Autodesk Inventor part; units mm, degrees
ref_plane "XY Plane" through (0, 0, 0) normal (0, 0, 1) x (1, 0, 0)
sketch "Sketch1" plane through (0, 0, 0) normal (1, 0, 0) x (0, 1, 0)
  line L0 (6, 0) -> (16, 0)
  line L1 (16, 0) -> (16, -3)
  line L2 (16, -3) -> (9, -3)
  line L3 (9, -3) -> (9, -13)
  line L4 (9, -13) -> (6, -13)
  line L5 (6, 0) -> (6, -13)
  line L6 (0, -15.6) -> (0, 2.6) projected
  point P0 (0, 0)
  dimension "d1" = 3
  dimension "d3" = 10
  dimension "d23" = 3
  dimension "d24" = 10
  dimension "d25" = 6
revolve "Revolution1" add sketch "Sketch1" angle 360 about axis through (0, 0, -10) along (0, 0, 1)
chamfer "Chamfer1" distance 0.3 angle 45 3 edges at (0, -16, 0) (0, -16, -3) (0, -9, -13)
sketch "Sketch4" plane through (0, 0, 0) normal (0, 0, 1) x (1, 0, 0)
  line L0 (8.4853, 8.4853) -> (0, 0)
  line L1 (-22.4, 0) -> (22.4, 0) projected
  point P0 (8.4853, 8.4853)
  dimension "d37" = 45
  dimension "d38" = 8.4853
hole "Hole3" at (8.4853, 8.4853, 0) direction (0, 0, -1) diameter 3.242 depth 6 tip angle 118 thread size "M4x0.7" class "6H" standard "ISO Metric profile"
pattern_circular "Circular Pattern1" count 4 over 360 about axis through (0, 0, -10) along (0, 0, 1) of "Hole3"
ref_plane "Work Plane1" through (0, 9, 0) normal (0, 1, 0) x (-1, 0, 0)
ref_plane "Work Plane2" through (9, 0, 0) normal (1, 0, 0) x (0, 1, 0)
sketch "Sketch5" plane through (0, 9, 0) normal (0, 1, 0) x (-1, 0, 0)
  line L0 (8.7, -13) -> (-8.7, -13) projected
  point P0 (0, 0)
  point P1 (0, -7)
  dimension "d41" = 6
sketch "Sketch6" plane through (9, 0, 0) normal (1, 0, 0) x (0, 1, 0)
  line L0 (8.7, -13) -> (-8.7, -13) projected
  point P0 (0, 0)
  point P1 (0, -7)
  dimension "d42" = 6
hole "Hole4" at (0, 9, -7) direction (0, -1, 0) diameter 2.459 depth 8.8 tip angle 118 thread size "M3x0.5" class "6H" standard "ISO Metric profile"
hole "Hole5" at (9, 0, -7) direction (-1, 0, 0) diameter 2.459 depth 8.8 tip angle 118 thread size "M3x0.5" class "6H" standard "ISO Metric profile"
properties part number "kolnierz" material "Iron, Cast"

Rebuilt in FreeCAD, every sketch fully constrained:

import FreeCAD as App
import Part
import Sketcher

V = App.Vector
Q = App.Units.Quantity


def edges_at(feature, points):
    """Names of the edges that pass closest to the given points."""
    edges = feature.Shape.Edges
    near = lambda p: min(range(len(edges)), key=lambda i: edges[i].distToShape(Part.Vertex(*p))[0])
    return sorted({f"Edge{near(p) + 1}" for p in points})


def add_polygon(sketch, points):
    """Adds a closed chain of lines whose ends are joined by coincident constraints."""
    first, n = sketch.GeometryCount, len(points)
    for a, b in zip(points, points[1:] + points[:1]):
        sketch.addGeometry(Part.LineSegment(App.Vector(*a, 0), App.Vector(*b, 0)), False)
    for i in range(n):
        sketch.addConstraint(Sketcher.Constraint("Coincident", first + i, 2, first + (i + 1) % n, 1))

doc = App.newDocument("Part")
body = doc.addObject("PartDesign::Body", "Body")

# Sketch on YZ plane
sketch1 = doc.addObject("Sketcher::SketchObject", "Sketch")
body.addObject(sketch1)
sketch1.AttachmentSupport = (doc.YZ_Plane, [""])
sketch1.MapMode = "FlatFace"
add_polygon(sketch1, [(16, 0), (6, 0), (6, -13), (9, -13), (9, -3), (16, -3)])  # lines 0-5
sketch1.addConstraint(Sketcher.Constraint("Horizontal", 0))
sketch1.addConstraint(Sketcher.Constraint("Vertical", 1))
sketch1.addConstraint(Sketcher.Constraint("Horizontal", 2))
sketch1.addConstraint(Sketcher.Constraint("Vertical", 3))
sketch1.addConstraint(Sketcher.Constraint("Horizontal", 4))
sketch1.addConstraint(Sketcher.Constraint("Vertical", 5))
sketch1.addConstraint(Sketcher.Constraint("PointOnObject", 0, 2, -1))
sketch1.addConstraint(Sketcher.Constraint("Equal", 0, 3))
sketch1.addConstraint(Sketcher.Constraint("Equal", 2, 5))
sketch1.addConstraint(Sketcher.Constraint("DistanceX", 0, 2, 0, 1, Q("10 mm")))
sketch1.addConstraint(Sketcher.Constraint("DistanceX", 2, 1, 2, 2, Q("3 mm")))
sketch1.addConstraint(Sketcher.Constraint("DistanceX", -1, 1, 0, 2, Q("6 mm")))
revolution = doc.addObject("PartDesign::Revolution", "Revolution")
body.addObject(revolution)
revolution.Profile = sketch1
revolution.ReferenceAxis = (sketch1, ["V_Axis"])
revolution.Angle = 360
doc.recompute()

chamfer = doc.addObject("PartDesign::Chamfer", "Chamfer")
body.addObject(chamfer)
chamfer.Base = (revolution, edges_at(revolution, [(0, -16, 0), (0, -16, -3), (0, -9, -13)]))
chamfer.Size = 0.3

# Sketch on XY plane
sketch2 = doc.addObject("Sketcher::SketchObject", "Sketch001")
body.addObject(sketch2)
sketch2.AttachmentSupport = (doc.XY_Plane, [""])
sketch2.MapMode = "FlatFace"
sketch2.addGeometry(Part.Circle(V(8.5, 8.5, 0), V(0, 0, 1), 1.6), False)
sketch2.addConstraint(Sketcher.Constraint("Diameter", 0, Q("3.242 mm")))
sketch2.addConstraint(Sketcher.Constraint("DistanceX", -1, 1, 0, 3, Q("8.4853 mm")))
sketch2.addConstraint(Sketcher.Constraint("DistanceY", -1, 1, 0, 3, Q("8.4853 mm")))
doc.recompute()
hole = doc.addObject("PartDesign::Hole", "Hole")
body.addObject(hole)
hole.Profile = sketch2
hole.ThreadType = "None"
hole.Diameter = 3.242
hole.DepthType = "Dimension"
hole.Depth = 6
hole.DrillPoint = "Angled"
hole.DrillPointAngle = 118
doc.recompute()

polarpattern = doc.addObject("PartDesign::PolarPattern", "PolarPattern")
body.addObject(polarpattern)
polarpattern.Originals = [hole]
polarpattern.Axis = (doc.Z_Axis, [""])
polarpattern.Angle = 360
polarpattern.Occurrences = 4
body.Tip = polarpattern

# Sketch on XZ plane
sketch3 = doc.addObject("Sketcher::SketchObject", "Sketch002")
body.addObject(sketch3)
sketch3.AttachmentSupport = (doc.XZ_Plane, [""])
sketch3.MapMode = "FlatFace"
sketch3.AttachmentOffset = App.Placement(V(0, 0, -9), App.Rotation())
sketch3.addGeometry(Part.Circle(V(0, -7, 0), V(0, 0, 1), 1.2), False)
sketch3.addConstraint(Sketcher.Constraint("PointOnObject", 0, 3, -2))
sketch3.addConstraint(Sketcher.Constraint("Diameter", 0, Q("2.459 mm")))
sketch3.addConstraint(Sketcher.Constraint("DistanceY", 0, 3, -1, 1, Q("7 mm")))
doc.recompute()
hole2 = doc.addObject("PartDesign::Hole", "Hole001")
body.addObject(hole2)
hole2.Profile = sketch3
hole2.ThreadType = "None"
hole2.Diameter = 2.459
hole2.DepthType = "Dimension"
hole2.Depth = 8.8
hole2.DrillPoint = "Angled"
hole2.DrillPointAngle = 118
hole2.Reversed = True

# Sketch on YZ plane
sketch4 = doc.addObject("Sketcher::SketchObject", "Sketch003")
body.addObject(sketch4)
sketch4.AttachmentSupport = (doc.YZ_Plane, [""])
sketch4.MapMode = "FlatFace"
sketch4.AttachmentOffset = App.Placement(V(0, 0, 9), App.Rotation())
sketch4.addGeometry(Part.Circle(V(0, -7, 0), V(0, 0, 1), 1.2), False)
sketch4.addConstraint(Sketcher.Constraint("PointOnObject", 0, 3, -2))
sketch4.addConstraint(Sketcher.Constraint("Diameter", 0, Q("2.459 mm")))
sketch4.addConstraint(Sketcher.Constraint("DistanceY", 0, 3, -1, 1, Q("7 mm")))
doc.recompute()
hole3 = doc.addObject("PartDesign::Hole", "Hole002")
body.addObject(hole3)
hole3.Profile = sketch4
hole3.ThreadType = "None"
hole3.Diameter = 2.459
hole3.DepthType = "Dimension"
hole3.Depth = 8.8
hole3.DrillPoint = "Angled"
hole3.DrillPointAngle = 118

doc.recompute()
